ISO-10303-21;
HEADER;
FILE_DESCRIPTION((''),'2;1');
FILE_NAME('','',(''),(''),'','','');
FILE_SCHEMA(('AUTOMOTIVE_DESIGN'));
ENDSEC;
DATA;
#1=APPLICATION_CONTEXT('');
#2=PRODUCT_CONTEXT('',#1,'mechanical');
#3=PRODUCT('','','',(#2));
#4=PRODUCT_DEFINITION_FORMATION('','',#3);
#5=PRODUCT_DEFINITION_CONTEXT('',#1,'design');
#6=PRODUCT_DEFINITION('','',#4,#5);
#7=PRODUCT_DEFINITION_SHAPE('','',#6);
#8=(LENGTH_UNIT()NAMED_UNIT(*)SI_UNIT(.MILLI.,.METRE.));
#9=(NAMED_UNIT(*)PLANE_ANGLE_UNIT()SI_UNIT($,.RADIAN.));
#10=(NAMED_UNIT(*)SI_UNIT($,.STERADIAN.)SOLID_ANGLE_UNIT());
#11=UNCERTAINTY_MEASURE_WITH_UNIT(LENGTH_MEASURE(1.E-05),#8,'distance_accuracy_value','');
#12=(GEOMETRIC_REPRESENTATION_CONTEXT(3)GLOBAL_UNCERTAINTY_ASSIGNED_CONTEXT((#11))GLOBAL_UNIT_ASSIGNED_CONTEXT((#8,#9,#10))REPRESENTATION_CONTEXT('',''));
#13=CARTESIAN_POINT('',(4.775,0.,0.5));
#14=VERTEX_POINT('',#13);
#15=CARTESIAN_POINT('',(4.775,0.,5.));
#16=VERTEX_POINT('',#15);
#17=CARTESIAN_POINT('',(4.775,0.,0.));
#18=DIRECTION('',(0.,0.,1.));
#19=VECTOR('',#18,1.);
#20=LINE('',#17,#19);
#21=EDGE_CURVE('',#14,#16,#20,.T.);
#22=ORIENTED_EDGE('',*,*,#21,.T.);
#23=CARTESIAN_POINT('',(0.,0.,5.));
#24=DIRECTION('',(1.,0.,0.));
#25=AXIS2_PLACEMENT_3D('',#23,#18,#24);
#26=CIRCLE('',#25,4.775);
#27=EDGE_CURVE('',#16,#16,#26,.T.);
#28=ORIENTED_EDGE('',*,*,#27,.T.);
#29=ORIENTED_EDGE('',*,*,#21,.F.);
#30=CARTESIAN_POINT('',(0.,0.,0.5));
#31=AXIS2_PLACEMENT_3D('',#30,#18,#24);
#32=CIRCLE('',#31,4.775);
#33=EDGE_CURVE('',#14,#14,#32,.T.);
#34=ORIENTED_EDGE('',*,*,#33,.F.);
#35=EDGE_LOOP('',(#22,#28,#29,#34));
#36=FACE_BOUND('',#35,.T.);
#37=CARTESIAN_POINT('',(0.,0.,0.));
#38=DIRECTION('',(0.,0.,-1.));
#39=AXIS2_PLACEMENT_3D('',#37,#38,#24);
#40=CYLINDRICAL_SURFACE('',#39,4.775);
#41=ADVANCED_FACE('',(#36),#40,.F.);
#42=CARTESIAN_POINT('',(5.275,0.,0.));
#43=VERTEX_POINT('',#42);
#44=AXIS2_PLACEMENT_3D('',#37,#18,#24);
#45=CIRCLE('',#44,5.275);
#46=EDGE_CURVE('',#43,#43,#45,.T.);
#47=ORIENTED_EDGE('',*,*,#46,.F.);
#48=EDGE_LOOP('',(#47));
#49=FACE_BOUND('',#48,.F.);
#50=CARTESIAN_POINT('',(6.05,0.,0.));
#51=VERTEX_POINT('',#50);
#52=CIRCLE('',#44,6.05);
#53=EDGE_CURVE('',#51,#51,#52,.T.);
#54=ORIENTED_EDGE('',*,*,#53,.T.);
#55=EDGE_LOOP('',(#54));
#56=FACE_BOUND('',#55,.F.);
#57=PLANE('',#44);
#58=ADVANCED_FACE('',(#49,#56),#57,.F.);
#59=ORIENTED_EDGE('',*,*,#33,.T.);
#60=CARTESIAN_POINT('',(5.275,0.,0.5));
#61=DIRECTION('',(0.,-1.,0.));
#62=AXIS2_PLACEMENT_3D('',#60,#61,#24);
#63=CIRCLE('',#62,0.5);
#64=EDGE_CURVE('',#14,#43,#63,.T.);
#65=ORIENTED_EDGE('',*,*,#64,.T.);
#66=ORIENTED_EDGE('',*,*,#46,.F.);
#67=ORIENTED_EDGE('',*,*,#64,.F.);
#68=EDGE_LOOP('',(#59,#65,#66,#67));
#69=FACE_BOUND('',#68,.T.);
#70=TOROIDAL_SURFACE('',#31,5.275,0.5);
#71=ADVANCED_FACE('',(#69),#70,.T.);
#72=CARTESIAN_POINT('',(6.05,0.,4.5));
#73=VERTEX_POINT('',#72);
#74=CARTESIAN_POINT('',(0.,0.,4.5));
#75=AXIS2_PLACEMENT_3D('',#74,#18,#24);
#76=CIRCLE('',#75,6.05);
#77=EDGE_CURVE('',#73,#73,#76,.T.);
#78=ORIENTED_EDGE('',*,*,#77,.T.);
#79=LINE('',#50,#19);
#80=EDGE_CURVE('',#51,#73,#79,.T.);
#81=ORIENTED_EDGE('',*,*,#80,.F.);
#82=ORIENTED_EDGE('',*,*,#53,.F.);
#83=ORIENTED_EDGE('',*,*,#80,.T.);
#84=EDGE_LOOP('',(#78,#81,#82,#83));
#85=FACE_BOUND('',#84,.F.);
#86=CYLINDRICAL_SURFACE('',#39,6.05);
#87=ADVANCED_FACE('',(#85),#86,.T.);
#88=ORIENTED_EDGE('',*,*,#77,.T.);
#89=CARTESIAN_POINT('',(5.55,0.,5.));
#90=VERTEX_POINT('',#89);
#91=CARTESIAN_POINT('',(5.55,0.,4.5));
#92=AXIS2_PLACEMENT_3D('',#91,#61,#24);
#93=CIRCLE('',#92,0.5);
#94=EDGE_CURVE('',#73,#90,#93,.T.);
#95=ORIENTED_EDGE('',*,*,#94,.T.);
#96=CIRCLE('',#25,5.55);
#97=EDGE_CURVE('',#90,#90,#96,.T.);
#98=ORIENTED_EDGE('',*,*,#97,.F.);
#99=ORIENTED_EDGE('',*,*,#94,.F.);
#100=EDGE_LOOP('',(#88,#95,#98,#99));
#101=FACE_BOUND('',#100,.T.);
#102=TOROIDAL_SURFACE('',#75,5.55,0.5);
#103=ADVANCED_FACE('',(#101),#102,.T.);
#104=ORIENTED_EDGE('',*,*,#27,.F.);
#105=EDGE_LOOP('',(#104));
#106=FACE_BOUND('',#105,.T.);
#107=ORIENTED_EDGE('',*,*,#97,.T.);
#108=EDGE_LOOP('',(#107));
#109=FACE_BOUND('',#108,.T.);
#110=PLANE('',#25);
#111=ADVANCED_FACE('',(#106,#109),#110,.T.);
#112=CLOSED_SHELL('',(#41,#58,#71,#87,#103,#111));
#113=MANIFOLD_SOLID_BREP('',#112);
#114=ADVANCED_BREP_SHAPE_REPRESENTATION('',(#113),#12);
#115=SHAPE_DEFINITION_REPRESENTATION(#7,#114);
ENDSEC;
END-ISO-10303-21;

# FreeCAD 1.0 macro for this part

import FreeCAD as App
import Part
import Sketcher

V = App.Vector


def edges_at(feature, points):
    """Names of the edges that pass closest to the given points."""
    edges = feature.Shape.Edges
    near = lambda p: min(range(len(edges)), key=lambda i: edges[i].distToShape(Part.Vertex(*p))[0])
    return sorted({f"Edge{near(p) + 1}" for p in points})

doc = App.newDocument("Part")
params = doc.addObject("Spreadsheet::Sheet", "Params")
for row, (alias, value) in enumerate([
    ("sketch1_diameter", "12.1 mm"),
    ("sketch1_diameter2", "9.55 mm"),
    ("pad1_length", "5 mm"),
    ("fillet_radius", "0.5 mm"),
], start=1):
    params.set(f"A{row}", alias)
    params.set(f"B{row}", "=" + value)
    params.setAlias(f"B{row}", alias)

body = doc.addObject("PartDesign::Body", "Body")

sketch1 = body.newObject("Sketcher::SketchObject", "Sketch")
sketch1.AttachmentSupport = (doc.getObject("XY_Plane"), [""])
sketch1.MapMode = "FlatFace"
sketch1.addGeometry([
    Part.Circle(V(0, 0, 0), V(0, 0, 1), 6),
    Part.Circle(V(0, 0, 0), V(0, 0, 1), 4.8),
], False)
sketch1.addConstraint([
    Sketcher.Constraint("Coincident", 0, 3, -1, 1),
    Sketcher.Constraint("Coincident", 1, 3, -1, 1),
    Sketcher.Constraint("Diameter", 0, 12.1),
    Sketcher.Constraint("Diameter", 1, 9.55),
])
sketch1.setExpression("Constraints[2]", "Params.sketch1_diameter")
sketch1.setExpression("Constraints[3]", "Params.sketch1_diameter2")
pad1 = body.newObject("PartDesign::Pad", "Pad")
pad1.Profile = sketch1
pad1.setExpression("Length", "Params.pad1_length")
doc.recompute()

fillet = body.newObject("PartDesign::Fillet", "Fillet")
fillet.Base = (pad1, edges_at(pad1, [(-5.641, -2.188, 5), (-4.452, 1.727, 0)]))
fillet.setExpression("Radius", "Params.fillet_radius")

doc.recompute()
